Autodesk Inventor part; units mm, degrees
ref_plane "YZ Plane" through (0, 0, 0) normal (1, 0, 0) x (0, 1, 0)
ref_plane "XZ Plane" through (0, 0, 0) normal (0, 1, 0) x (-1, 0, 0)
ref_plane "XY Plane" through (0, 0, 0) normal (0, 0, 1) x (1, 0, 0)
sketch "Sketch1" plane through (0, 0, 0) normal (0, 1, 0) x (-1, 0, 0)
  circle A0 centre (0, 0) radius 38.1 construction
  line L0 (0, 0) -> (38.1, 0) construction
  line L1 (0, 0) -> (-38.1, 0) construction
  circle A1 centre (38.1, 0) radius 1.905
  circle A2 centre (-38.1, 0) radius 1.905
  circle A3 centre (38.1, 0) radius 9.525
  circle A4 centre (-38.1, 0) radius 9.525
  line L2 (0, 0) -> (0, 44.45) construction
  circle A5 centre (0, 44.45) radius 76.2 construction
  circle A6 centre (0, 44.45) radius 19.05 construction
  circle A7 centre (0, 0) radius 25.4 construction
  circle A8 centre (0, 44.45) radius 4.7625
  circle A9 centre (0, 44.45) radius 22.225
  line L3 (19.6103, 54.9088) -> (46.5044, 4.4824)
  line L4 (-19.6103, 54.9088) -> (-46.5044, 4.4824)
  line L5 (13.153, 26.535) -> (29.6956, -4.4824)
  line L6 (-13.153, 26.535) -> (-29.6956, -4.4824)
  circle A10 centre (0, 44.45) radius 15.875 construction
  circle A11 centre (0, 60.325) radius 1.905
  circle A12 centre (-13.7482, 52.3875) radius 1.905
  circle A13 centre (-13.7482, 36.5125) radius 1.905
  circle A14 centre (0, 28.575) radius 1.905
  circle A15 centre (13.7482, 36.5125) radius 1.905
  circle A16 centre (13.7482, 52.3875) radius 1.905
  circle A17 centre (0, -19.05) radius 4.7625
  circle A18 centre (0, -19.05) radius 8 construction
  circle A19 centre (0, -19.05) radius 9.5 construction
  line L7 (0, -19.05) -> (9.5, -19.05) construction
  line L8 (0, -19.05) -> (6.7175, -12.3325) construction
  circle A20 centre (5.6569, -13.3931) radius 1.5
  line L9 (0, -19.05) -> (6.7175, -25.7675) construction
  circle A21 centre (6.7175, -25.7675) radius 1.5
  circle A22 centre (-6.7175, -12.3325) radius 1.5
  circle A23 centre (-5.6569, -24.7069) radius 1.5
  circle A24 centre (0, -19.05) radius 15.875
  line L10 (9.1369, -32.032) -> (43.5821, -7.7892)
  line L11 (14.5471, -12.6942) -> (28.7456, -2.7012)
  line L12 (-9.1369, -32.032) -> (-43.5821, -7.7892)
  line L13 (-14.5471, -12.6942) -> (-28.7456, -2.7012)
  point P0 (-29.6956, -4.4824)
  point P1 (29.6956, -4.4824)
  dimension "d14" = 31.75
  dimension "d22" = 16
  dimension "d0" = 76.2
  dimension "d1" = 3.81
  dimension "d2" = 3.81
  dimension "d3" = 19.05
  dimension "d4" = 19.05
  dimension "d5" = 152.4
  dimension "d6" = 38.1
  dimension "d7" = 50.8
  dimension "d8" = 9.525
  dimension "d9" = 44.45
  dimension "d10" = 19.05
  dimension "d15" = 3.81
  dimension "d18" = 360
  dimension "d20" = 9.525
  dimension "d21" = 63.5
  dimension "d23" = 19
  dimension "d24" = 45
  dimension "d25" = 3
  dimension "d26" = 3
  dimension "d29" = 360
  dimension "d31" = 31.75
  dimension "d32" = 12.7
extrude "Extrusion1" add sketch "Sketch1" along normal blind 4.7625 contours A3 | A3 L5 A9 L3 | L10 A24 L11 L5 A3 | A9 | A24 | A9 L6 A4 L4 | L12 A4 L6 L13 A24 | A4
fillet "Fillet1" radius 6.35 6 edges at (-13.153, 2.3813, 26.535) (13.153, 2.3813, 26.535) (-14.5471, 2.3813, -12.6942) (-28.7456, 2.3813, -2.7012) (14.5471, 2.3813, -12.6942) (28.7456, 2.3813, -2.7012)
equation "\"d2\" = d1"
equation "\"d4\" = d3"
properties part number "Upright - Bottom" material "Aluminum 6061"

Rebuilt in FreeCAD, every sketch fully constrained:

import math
import FreeCAD as App
import Part
import Sketcher
from FreeCAD import Vector
Q = App.Units.Quantity


def edges_at(feature, points):
    """Names of the edges that pass closest to the given points."""
    edges = feature.Shape.Edges
    near = lambda p: min(range(len(edges)), key=lambda i: edges[i].distToShape(Part.Vertex(*p))[0])
    return sorted({f"Edge{near(p) + 1}" for p in points})

doc = App.newDocument("Part")
body = doc.addObject("PartDesign::Body", "Body")

# Sketch on XZ plane
sketch1 = body.newObject("Sketcher::SketchObject", "Sketch")
sketch1.AttachmentSupport = (doc.getObject("XZ_Plane"), [""])
sketch1.MapMode = "FlatFace"
sketch1.addGeometry([
    Part.ArcOfCircle(Part.Circle(Vector(-38.1, 0, 0), Vector(0, 0, 1), 9.525), math.radians(151.92723), math.radians(234.861817)),  # 0
    Part.LineSegment(Vector(-46.5044, 4.4824, 0), Vector(-19.6103, 54.9088, 0)),  # 1
    Part.ArcOfCircle(Part.Circle(Vector(0, 44.45, 0), Vector(0, 0, 1), 22.225), math.radians(28.072426), math.radians(151.927574)),  # 2
    Part.LineSegment(Vector(19.6103, 54.9088, 0), Vector(46.5044, 4.4824, 0)),  # 3
    Part.ArcOfCircle(Part.Circle(Vector(38.1, 0, 0), Vector(0, 0, 1), 9.525), math.radians(-54.861817), math.radians(28.07277)),  # 4
    Part.LineSegment(Vector(43.5821, -7.7892, 0), Vector(9.1369, -32.032, 0)),  # 5
    Part.ArcOfCircle(Part.Circle(Vector(0, -19.05, 0), Vector(0, 0, 1), 15.875), math.radians(-125.13838), math.radians(-54.86162)),  # 6
    Part.LineSegment(Vector(-9.1369, -32.032, 0), Vector(-43.5821, -7.7892, 0)),  # 7
    Part.Circle(Vector(-38.1, 0, 0), Vector(0, 0, 1), 1.905),  # 8
    Part.LineSegment(Vector(-28.7456, -2.7012, 0), Vector(-14.5471, -12.6942, 0)),  # 9
    Part.ArcOfCircle(Part.Circle(Vector(0, -19.05, 0), Vector(0, 0, 1), 15.875), math.radians(23.601086), math.radians(156.398914)),  # 10
    Part.LineSegment(Vector(14.5471, -12.6942, 0), Vector(28.7456, -2.7012, 0)),  # 11
    Part.LineSegment(Vector(28.745621, -2.701189, 0), Vector(13.153, 26.535, 0)),  # 12
    Part.ArcOfCircle(Part.Circle(Vector(0, 44.45, 0), Vector(0, 0, 1), 22.225), math.radians(-126.285714), math.radians(-53.714286)),  # 13
    Part.LineSegment(Vector(-13.153, 26.535, 0), Vector(-28.745621, -2.701189, 0)),  # 14
    Part.Circle(Vector(0, -19.05, 0), Vector(0, 0, 1), 4.7625),  # 15
    Part.Circle(Vector(-5.6569, -13.3931, 0), Vector(0, 0, 1), 1.5),  # 16
    Part.Circle(Vector(5.6569, -24.7069, 0), Vector(0, 0, 1), 1.5),  # 17
    Part.Circle(Vector(6.7175, -12.3325, 0), Vector(0, 0, 1), 1.5),  # 18
    Part.Circle(Vector(-6.7175, -25.7675, 0), Vector(0, 0, 1), 1.5),  # 19
    Part.Circle(Vector(0, 60.325, 0), Vector(0, 0, 1), 1.905),  # 20
    Part.Circle(Vector(-13.7482, 52.3875, 0), Vector(0, 0, 1), 1.905),  # 21
    Part.Circle(Vector(13.7482, 36.5125, 0), Vector(0, 0, 1), 1.905),  # 22
    Part.Circle(Vector(13.7482, 52.3875, 0), Vector(0, 0, 1), 1.905),  # 23
    Part.Circle(Vector(0, 28.575, 0), Vector(0, 0, 1), 1.905),  # 24
    Part.Circle(Vector(-13.7482, 36.5125, 0), Vector(0, 0, 1), 1.905),  # 25
    Part.Circle(Vector(0, 44.45, 0), Vector(0, 0, 1), 4.7625),  # 26
    Part.Circle(Vector(38.1, 0, 0), Vector(0, 0, 1), 1.905),  # 27
], False)
sketch1.addConstraint([
    Sketcher.Constraint("Tangent", 0, 1, 1, 1),
    Sketcher.Constraint("Tangent", 1, 2, 2, 2),
    Sketcher.Constraint("Tangent", 2, 1, 3, 1),
    Sketcher.Constraint("Tangent", 3, 2, 4, 2),
    Sketcher.Constraint("Tangent", 4, 1, 5, 1),
    Sketcher.Constraint("Tangent", 5, 2, 6, 2),
    Sketcher.Constraint("Tangent", 6, 1, 7, 1),
    Sketcher.Constraint("Tangent", 7, 2, 0, 2),
    Sketcher.Constraint("Coincident", 9, 2, 10, 2),
    Sketcher.Constraint("Coincident", 10, 1, 11, 1),
    Sketcher.Constraint("Coincident", 11, 2, 12, 1),
    Sketcher.Constraint("Coincident", 12, 2, 13, 2),
    Sketcher.Constraint("Coincident", 13, 1, 14, 1),
    Sketcher.Constraint("Coincident", 14, 2, 9, 1),
    Sketcher.Constraint("Coincident", 8, 3, 0, 3),
    Sketcher.Constraint("Coincident", 10, 3, 6, 3),
    Sketcher.Constraint("Coincident", 13, 3, 2, 3),
    Sketcher.Constraint("Coincident", 15, 3, 6, 3),
    Sketcher.Constraint("Coincident", 26, 3, 2, 3),
    Sketcher.Constraint("Coincident", 27, 3, 4, 3),
    Sketcher.Constraint("Equal", 0, 4),
    Sketcher.Constraint("Equal", 6, 10),
    Sketcher.Constraint("Equal", 2, 13),
    Sketcher.Constraint("Equal", 16, 17),
    Sketcher.Constraint("Equal", 17, 18),
    Sketcher.Constraint("Equal", 18, 19),
    Sketcher.Constraint("Equal", 8, 20),
    Sketcher.Constraint("Equal", 20, 21),
    Sketcher.Constraint("Equal", 21, 22),
    Sketcher.Constraint("Equal", 22, 23),
    Sketcher.Constraint("Equal", 23, 24),
    Sketcher.Constraint("Equal", 24, 25),
    Sketcher.Constraint("Equal", 15, 26),
    Sketcher.Constraint("Equal", 25, 27),
    Sketcher.Constraint("Symmetric", 0, 3, 4, 3, -1, 1),
    Sketcher.Constraint("Symmetric", 21, 3, 23, 3, -2),
    Sketcher.Constraint("Symmetric", 22, 3, 25, 3, -2),
    Sketcher.Constraint("Symmetric", 1, 2, 2, 1, -2),
    Sketcher.Constraint("Symmetric", 9, 2, 10, 1, -2),
    Sketcher.Constraint("Symmetric", 11, 2, 14, 2, -2),
    Sketcher.Constraint("PointOnObject", 20, 3, -2),
    Sketcher.Constraint("PointOnObject", 24, 3, -2),
    Sketcher.Constraint("Parallel", 7, 9),
    Sketcher.Constraint("Parallel", 3, 12),
    Sketcher.Constraint("Parallel", 1, 14),
    Sketcher.Constraint("Vertical", 22, 3, 23, 3),
    Sketcher.Constraint("Diameter", 8, Q("0.15 in")),
    Sketcher.Constraint("Diameter", 15, Q("0.375 in")),
    Sketcher.Constraint("Radius", 0, Q("0.375 in")),
    Sketcher.Constraint("Radius", 2, Q("0.875 in")),
    Sketcher.Constraint("Radius", 6, Q("0.625 in")),
    Sketcher.Constraint("DistanceX", 0, 3, 4, 3, Q("3 in")),
    Sketcher.Constraint("Diameter", 16, Q("0.1181 in")),
    Sketcher.Constraint("DistanceY", 6, 3, 2, 3, Q("2.5 in")),
    Sketcher.Constraint("DistanceY", -1, 1, 2, 3, Q("1.75 in")),
    Sketcher.Constraint("DistanceX", 9, 2, 16, 3, Q("0.35 in")),
    Sketcher.Constraint("DistanceX", 17, 3, 10, 1, Q("0.35 in")),
    Sketcher.Constraint("DistanceY", -1, 1, 20, 3, Q("2.375 in")),
    Sketcher.Constraint("DistanceY", -1, 1, 21, 3, Q("2.0625 in")),
    Sketcher.Constraint("DistanceY", -1, 1, 22, 3, Q("1.4375 in")),
    Sketcher.Constraint("DistanceY", -1, 1, 24, 3, Q("1.125 in")),
    Sketcher.Constraint("DistanceY", 18, 3, 3, 2, Q("0.662 in")),
    Sketcher.Constraint("DistanceX", 17, 3, 5, 2, Q("0.137 in")),
    Sketcher.Constraint("DistanceX", 10, 1, 11, 2, Q("0.559 in")),
    Sketcher.Constraint("DistanceX", 1, 2, 21, 3, Q("0.2308 in")),
    Sketcher.Constraint("DistanceY", 5, 2, 17, 3, Q("0.2884 in")),
    Sketcher.Constraint("DistanceX", 19, 3, 5, 2, Q("0.6242 in")),
    Sketcher.Constraint("DistanceY", 19, 3, 7, 2, Q("0.7078 in")),
    Sketcher.Constraint("DistanceY", 16, 3, -1, 1, Q("13.393 mm")),
    Sketcher.Constraint("DistanceX", -1, 1, 18, 3, Q("6.7175 mm")),
])
pad1 = body.newObject("PartDesign::Pad", "Pad")
pad1.Profile = sketch1
pad1.Length = Q("0.1875 in")
pad1.Reversed = True
doc.recompute()

fillet = body.newObject("PartDesign::Fillet", "Fillet")
fillet.Base = (pad1, edges_at(pad1, [
    (-13.153, 2.381, 26.535),
    (13.153, 2.381, 26.535),
    (-14.547, 2.381, -12.694),
    (-28.746, 2.381, -2.701),
    (14.547, 2.381, -12.694),
    (28.746, 2.381, -2.701),
]))
fillet.Radius = Q("0.25 in")

doc.recompute()
